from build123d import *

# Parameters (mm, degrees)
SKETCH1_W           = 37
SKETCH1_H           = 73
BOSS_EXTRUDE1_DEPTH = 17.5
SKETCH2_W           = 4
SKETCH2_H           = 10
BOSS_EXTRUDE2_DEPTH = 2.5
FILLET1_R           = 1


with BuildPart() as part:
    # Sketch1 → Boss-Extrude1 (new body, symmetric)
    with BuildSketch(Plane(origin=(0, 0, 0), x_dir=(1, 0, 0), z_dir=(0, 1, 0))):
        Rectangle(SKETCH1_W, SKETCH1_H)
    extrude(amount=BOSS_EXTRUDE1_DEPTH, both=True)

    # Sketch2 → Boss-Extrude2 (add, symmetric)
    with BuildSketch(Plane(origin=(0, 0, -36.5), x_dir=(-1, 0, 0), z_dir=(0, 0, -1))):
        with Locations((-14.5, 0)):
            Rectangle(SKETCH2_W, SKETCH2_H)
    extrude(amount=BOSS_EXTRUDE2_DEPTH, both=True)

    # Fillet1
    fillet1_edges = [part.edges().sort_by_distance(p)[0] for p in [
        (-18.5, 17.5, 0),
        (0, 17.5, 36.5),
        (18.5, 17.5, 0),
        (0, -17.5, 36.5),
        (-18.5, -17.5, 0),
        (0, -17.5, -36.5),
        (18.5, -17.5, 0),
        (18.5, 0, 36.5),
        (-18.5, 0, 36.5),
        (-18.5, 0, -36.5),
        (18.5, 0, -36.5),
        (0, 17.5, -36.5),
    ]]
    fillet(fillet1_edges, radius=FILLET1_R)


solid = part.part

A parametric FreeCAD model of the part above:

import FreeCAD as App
import Part
import Sketcher

V = App.Vector
Q = App.Units.Quantity


def edges_at(feature, points):
    """Names of the edges that pass closest to the given points."""
    edges = feature.Shape.Edges
    near = lambda p: min(range(len(edges)), key=lambda i: edges[i].distToShape(Part.Vertex(*p))[0])
    return sorted({f"Edge{near(p) + 1}" for p in points})

doc = App.newDocument("Part")
params = doc.addObject("Spreadsheet::Sheet", "Params")
for row, (alias, value) in enumerate([
    ("sketch1_width", "37 mm"),
    ("sketch1_height", "73 mm"),
    ("pad1_length", "35 mm"),
    ("sketch2_width", "4 mm"),
    ("sketch2_height", "10 mm"),
    ("pad2_length", "5 mm"),
    ("fillet_radius", "1 mm"),
], start=1):
    params.set(f"A{row}", alias)
    params.set(f"B{row}", "=" + value)
    params.setAlias(f"B{row}", alias)

body = doc.addObject("PartDesign::Body", "Body")

# Sketch on XZ plane
sketch1 = doc.addObject("Sketcher::SketchObject", "Sketch")
body.addObject(sketch1)
sketch1.AttachmentSupport = (doc.XZ_Plane, [""])
sketch1.MapMode = "FlatFace"
sketch1.addGeometry([
    Part.LineSegment(V(-18, -36, 0), V(-18, 36, 0)),
    Part.LineSegment(V(-18, 36, 0), V(18, 36, 0)),
    Part.LineSegment(V(18, 36, 0), V(18, -36, 0)),
    Part.LineSegment(V(18, -36, 0), V(-18, -36, 0)),
], False)
sketch1.addConstraint([
    Sketcher.Constraint("Coincident", 0, 2, 1, 1),
    Sketcher.Constraint("Coincident", 1, 2, 2, 1),
    Sketcher.Constraint("Coincident", 2, 2, 3, 1),
    Sketcher.Constraint("Coincident", 3, 2, 0, 1),
    Sketcher.Constraint("Vertical", 0),
    Sketcher.Constraint("Horizontal", 1),
    Sketcher.Constraint("Vertical", 2),
    Sketcher.Constraint("Horizontal", 3),
    Sketcher.Constraint("Symmetric", 0, 2, 2, 2, -1, 1),
    Sketcher.Constraint("DistanceX", 1, 1, 1, 2, Q("37 mm")),
    Sketcher.Constraint("DistanceY", 0, 1, 0, 2, Q("73 mm")),
])
sketch1.setExpression("Constraints[9]", "Params.sketch1_width")
sketch1.setExpression("Constraints[10]", "Params.sketch1_height")
pad1 = doc.addObject("PartDesign::Pad", "Pad")
body.addObject(pad1)
pad1.Profile = sketch1
pad1.setExpression("Length", "Params.pad1_length")
pad1.Midplane = True

# Sketch on XY plane
sketch2 = doc.addObject("Sketcher::SketchObject", "Sketch001")
body.addObject(sketch2)
sketch2.AttachmentSupport = (doc.XY_Plane, [""])
sketch2.MapMode = "FlatFace"
sketch2.AttachmentOffset = App.Placement(V(0, 0, -36.5), App.Rotation())
sketch2.addGeometry([
    Part.LineSegment(V(16.5, 5, 0), V(16.5, -5, 0)),
    Part.LineSegment(V(16.5, -5, 0), V(12.5, -5, 0)),
    Part.LineSegment(V(12.5, -5, 0), V(12.5, 5, 0)),
    Part.LineSegment(V(12.5, 5, 0), V(16.5, 5, 0)),
], False)
sketch2.addConstraint([
    Sketcher.Constraint("Coincident", 0, 2, 1, 1),
    Sketcher.Constraint("Coincident", 1, 2, 2, 1),
    Sketcher.Constraint("Coincident", 2, 2, 3, 1),
    Sketcher.Constraint("Coincident", 3, 2, 0, 1),
    Sketcher.Constraint("Vertical", 0),
    Sketcher.Constraint("Horizontal", 1),
    Sketcher.Constraint("Vertical", 2),
    Sketcher.Constraint("Horizontal", 3),
    Sketcher.Constraint("DistanceX", 1, 2, 1, 1, Q("4 mm")),
    Sketcher.Constraint("DistanceY", 0, 2, 0, 1, Q("10 mm")),
    Sketcher.Constraint("DistanceY", 0, 2, -1, 1, Q("5 mm")),
    Sketcher.Constraint("DistanceX", -1, 1, 0, 2, Q("16.5 mm")),
])
sketch2.setExpression("Constraints[8]", "Params.sketch2_width")
sketch2.setExpression("Constraints[9]", "Params.sketch2_height")
pad2 = doc.addObject("PartDesign::Pad", "Pad001")
body.addObject(pad2)
pad2.Profile = sketch2
pad2.setExpression("Length", "Params.pad2_length")
pad2.Midplane = True
doc.recompute()

fillet = doc.addObject("PartDesign::Fillet", "Fillet")
body.addObject(fillet)
fillet.Base = (pad2, edges_at(pad2, [
    (-18.5, 17.5, 0),
    (0, 17.5, 36.5),
    (18.5, 17.5, 0),
    (0, -17.5, 36.5),
    (-18.5, -17.5, 0),
    (0, -17.5, -36.5),
    (18.5, -17.5, 0),
    (18.5, 0, 36.5),
    (-18.5, 0, 36.5),
    (-18.5, 0, -36.5),
    (18.5, 0, -36.5),
    (0, 17.5, -36.5),
]))
fillet.setExpression("Radius", "Params.fillet_radius")

doc.recompute()
